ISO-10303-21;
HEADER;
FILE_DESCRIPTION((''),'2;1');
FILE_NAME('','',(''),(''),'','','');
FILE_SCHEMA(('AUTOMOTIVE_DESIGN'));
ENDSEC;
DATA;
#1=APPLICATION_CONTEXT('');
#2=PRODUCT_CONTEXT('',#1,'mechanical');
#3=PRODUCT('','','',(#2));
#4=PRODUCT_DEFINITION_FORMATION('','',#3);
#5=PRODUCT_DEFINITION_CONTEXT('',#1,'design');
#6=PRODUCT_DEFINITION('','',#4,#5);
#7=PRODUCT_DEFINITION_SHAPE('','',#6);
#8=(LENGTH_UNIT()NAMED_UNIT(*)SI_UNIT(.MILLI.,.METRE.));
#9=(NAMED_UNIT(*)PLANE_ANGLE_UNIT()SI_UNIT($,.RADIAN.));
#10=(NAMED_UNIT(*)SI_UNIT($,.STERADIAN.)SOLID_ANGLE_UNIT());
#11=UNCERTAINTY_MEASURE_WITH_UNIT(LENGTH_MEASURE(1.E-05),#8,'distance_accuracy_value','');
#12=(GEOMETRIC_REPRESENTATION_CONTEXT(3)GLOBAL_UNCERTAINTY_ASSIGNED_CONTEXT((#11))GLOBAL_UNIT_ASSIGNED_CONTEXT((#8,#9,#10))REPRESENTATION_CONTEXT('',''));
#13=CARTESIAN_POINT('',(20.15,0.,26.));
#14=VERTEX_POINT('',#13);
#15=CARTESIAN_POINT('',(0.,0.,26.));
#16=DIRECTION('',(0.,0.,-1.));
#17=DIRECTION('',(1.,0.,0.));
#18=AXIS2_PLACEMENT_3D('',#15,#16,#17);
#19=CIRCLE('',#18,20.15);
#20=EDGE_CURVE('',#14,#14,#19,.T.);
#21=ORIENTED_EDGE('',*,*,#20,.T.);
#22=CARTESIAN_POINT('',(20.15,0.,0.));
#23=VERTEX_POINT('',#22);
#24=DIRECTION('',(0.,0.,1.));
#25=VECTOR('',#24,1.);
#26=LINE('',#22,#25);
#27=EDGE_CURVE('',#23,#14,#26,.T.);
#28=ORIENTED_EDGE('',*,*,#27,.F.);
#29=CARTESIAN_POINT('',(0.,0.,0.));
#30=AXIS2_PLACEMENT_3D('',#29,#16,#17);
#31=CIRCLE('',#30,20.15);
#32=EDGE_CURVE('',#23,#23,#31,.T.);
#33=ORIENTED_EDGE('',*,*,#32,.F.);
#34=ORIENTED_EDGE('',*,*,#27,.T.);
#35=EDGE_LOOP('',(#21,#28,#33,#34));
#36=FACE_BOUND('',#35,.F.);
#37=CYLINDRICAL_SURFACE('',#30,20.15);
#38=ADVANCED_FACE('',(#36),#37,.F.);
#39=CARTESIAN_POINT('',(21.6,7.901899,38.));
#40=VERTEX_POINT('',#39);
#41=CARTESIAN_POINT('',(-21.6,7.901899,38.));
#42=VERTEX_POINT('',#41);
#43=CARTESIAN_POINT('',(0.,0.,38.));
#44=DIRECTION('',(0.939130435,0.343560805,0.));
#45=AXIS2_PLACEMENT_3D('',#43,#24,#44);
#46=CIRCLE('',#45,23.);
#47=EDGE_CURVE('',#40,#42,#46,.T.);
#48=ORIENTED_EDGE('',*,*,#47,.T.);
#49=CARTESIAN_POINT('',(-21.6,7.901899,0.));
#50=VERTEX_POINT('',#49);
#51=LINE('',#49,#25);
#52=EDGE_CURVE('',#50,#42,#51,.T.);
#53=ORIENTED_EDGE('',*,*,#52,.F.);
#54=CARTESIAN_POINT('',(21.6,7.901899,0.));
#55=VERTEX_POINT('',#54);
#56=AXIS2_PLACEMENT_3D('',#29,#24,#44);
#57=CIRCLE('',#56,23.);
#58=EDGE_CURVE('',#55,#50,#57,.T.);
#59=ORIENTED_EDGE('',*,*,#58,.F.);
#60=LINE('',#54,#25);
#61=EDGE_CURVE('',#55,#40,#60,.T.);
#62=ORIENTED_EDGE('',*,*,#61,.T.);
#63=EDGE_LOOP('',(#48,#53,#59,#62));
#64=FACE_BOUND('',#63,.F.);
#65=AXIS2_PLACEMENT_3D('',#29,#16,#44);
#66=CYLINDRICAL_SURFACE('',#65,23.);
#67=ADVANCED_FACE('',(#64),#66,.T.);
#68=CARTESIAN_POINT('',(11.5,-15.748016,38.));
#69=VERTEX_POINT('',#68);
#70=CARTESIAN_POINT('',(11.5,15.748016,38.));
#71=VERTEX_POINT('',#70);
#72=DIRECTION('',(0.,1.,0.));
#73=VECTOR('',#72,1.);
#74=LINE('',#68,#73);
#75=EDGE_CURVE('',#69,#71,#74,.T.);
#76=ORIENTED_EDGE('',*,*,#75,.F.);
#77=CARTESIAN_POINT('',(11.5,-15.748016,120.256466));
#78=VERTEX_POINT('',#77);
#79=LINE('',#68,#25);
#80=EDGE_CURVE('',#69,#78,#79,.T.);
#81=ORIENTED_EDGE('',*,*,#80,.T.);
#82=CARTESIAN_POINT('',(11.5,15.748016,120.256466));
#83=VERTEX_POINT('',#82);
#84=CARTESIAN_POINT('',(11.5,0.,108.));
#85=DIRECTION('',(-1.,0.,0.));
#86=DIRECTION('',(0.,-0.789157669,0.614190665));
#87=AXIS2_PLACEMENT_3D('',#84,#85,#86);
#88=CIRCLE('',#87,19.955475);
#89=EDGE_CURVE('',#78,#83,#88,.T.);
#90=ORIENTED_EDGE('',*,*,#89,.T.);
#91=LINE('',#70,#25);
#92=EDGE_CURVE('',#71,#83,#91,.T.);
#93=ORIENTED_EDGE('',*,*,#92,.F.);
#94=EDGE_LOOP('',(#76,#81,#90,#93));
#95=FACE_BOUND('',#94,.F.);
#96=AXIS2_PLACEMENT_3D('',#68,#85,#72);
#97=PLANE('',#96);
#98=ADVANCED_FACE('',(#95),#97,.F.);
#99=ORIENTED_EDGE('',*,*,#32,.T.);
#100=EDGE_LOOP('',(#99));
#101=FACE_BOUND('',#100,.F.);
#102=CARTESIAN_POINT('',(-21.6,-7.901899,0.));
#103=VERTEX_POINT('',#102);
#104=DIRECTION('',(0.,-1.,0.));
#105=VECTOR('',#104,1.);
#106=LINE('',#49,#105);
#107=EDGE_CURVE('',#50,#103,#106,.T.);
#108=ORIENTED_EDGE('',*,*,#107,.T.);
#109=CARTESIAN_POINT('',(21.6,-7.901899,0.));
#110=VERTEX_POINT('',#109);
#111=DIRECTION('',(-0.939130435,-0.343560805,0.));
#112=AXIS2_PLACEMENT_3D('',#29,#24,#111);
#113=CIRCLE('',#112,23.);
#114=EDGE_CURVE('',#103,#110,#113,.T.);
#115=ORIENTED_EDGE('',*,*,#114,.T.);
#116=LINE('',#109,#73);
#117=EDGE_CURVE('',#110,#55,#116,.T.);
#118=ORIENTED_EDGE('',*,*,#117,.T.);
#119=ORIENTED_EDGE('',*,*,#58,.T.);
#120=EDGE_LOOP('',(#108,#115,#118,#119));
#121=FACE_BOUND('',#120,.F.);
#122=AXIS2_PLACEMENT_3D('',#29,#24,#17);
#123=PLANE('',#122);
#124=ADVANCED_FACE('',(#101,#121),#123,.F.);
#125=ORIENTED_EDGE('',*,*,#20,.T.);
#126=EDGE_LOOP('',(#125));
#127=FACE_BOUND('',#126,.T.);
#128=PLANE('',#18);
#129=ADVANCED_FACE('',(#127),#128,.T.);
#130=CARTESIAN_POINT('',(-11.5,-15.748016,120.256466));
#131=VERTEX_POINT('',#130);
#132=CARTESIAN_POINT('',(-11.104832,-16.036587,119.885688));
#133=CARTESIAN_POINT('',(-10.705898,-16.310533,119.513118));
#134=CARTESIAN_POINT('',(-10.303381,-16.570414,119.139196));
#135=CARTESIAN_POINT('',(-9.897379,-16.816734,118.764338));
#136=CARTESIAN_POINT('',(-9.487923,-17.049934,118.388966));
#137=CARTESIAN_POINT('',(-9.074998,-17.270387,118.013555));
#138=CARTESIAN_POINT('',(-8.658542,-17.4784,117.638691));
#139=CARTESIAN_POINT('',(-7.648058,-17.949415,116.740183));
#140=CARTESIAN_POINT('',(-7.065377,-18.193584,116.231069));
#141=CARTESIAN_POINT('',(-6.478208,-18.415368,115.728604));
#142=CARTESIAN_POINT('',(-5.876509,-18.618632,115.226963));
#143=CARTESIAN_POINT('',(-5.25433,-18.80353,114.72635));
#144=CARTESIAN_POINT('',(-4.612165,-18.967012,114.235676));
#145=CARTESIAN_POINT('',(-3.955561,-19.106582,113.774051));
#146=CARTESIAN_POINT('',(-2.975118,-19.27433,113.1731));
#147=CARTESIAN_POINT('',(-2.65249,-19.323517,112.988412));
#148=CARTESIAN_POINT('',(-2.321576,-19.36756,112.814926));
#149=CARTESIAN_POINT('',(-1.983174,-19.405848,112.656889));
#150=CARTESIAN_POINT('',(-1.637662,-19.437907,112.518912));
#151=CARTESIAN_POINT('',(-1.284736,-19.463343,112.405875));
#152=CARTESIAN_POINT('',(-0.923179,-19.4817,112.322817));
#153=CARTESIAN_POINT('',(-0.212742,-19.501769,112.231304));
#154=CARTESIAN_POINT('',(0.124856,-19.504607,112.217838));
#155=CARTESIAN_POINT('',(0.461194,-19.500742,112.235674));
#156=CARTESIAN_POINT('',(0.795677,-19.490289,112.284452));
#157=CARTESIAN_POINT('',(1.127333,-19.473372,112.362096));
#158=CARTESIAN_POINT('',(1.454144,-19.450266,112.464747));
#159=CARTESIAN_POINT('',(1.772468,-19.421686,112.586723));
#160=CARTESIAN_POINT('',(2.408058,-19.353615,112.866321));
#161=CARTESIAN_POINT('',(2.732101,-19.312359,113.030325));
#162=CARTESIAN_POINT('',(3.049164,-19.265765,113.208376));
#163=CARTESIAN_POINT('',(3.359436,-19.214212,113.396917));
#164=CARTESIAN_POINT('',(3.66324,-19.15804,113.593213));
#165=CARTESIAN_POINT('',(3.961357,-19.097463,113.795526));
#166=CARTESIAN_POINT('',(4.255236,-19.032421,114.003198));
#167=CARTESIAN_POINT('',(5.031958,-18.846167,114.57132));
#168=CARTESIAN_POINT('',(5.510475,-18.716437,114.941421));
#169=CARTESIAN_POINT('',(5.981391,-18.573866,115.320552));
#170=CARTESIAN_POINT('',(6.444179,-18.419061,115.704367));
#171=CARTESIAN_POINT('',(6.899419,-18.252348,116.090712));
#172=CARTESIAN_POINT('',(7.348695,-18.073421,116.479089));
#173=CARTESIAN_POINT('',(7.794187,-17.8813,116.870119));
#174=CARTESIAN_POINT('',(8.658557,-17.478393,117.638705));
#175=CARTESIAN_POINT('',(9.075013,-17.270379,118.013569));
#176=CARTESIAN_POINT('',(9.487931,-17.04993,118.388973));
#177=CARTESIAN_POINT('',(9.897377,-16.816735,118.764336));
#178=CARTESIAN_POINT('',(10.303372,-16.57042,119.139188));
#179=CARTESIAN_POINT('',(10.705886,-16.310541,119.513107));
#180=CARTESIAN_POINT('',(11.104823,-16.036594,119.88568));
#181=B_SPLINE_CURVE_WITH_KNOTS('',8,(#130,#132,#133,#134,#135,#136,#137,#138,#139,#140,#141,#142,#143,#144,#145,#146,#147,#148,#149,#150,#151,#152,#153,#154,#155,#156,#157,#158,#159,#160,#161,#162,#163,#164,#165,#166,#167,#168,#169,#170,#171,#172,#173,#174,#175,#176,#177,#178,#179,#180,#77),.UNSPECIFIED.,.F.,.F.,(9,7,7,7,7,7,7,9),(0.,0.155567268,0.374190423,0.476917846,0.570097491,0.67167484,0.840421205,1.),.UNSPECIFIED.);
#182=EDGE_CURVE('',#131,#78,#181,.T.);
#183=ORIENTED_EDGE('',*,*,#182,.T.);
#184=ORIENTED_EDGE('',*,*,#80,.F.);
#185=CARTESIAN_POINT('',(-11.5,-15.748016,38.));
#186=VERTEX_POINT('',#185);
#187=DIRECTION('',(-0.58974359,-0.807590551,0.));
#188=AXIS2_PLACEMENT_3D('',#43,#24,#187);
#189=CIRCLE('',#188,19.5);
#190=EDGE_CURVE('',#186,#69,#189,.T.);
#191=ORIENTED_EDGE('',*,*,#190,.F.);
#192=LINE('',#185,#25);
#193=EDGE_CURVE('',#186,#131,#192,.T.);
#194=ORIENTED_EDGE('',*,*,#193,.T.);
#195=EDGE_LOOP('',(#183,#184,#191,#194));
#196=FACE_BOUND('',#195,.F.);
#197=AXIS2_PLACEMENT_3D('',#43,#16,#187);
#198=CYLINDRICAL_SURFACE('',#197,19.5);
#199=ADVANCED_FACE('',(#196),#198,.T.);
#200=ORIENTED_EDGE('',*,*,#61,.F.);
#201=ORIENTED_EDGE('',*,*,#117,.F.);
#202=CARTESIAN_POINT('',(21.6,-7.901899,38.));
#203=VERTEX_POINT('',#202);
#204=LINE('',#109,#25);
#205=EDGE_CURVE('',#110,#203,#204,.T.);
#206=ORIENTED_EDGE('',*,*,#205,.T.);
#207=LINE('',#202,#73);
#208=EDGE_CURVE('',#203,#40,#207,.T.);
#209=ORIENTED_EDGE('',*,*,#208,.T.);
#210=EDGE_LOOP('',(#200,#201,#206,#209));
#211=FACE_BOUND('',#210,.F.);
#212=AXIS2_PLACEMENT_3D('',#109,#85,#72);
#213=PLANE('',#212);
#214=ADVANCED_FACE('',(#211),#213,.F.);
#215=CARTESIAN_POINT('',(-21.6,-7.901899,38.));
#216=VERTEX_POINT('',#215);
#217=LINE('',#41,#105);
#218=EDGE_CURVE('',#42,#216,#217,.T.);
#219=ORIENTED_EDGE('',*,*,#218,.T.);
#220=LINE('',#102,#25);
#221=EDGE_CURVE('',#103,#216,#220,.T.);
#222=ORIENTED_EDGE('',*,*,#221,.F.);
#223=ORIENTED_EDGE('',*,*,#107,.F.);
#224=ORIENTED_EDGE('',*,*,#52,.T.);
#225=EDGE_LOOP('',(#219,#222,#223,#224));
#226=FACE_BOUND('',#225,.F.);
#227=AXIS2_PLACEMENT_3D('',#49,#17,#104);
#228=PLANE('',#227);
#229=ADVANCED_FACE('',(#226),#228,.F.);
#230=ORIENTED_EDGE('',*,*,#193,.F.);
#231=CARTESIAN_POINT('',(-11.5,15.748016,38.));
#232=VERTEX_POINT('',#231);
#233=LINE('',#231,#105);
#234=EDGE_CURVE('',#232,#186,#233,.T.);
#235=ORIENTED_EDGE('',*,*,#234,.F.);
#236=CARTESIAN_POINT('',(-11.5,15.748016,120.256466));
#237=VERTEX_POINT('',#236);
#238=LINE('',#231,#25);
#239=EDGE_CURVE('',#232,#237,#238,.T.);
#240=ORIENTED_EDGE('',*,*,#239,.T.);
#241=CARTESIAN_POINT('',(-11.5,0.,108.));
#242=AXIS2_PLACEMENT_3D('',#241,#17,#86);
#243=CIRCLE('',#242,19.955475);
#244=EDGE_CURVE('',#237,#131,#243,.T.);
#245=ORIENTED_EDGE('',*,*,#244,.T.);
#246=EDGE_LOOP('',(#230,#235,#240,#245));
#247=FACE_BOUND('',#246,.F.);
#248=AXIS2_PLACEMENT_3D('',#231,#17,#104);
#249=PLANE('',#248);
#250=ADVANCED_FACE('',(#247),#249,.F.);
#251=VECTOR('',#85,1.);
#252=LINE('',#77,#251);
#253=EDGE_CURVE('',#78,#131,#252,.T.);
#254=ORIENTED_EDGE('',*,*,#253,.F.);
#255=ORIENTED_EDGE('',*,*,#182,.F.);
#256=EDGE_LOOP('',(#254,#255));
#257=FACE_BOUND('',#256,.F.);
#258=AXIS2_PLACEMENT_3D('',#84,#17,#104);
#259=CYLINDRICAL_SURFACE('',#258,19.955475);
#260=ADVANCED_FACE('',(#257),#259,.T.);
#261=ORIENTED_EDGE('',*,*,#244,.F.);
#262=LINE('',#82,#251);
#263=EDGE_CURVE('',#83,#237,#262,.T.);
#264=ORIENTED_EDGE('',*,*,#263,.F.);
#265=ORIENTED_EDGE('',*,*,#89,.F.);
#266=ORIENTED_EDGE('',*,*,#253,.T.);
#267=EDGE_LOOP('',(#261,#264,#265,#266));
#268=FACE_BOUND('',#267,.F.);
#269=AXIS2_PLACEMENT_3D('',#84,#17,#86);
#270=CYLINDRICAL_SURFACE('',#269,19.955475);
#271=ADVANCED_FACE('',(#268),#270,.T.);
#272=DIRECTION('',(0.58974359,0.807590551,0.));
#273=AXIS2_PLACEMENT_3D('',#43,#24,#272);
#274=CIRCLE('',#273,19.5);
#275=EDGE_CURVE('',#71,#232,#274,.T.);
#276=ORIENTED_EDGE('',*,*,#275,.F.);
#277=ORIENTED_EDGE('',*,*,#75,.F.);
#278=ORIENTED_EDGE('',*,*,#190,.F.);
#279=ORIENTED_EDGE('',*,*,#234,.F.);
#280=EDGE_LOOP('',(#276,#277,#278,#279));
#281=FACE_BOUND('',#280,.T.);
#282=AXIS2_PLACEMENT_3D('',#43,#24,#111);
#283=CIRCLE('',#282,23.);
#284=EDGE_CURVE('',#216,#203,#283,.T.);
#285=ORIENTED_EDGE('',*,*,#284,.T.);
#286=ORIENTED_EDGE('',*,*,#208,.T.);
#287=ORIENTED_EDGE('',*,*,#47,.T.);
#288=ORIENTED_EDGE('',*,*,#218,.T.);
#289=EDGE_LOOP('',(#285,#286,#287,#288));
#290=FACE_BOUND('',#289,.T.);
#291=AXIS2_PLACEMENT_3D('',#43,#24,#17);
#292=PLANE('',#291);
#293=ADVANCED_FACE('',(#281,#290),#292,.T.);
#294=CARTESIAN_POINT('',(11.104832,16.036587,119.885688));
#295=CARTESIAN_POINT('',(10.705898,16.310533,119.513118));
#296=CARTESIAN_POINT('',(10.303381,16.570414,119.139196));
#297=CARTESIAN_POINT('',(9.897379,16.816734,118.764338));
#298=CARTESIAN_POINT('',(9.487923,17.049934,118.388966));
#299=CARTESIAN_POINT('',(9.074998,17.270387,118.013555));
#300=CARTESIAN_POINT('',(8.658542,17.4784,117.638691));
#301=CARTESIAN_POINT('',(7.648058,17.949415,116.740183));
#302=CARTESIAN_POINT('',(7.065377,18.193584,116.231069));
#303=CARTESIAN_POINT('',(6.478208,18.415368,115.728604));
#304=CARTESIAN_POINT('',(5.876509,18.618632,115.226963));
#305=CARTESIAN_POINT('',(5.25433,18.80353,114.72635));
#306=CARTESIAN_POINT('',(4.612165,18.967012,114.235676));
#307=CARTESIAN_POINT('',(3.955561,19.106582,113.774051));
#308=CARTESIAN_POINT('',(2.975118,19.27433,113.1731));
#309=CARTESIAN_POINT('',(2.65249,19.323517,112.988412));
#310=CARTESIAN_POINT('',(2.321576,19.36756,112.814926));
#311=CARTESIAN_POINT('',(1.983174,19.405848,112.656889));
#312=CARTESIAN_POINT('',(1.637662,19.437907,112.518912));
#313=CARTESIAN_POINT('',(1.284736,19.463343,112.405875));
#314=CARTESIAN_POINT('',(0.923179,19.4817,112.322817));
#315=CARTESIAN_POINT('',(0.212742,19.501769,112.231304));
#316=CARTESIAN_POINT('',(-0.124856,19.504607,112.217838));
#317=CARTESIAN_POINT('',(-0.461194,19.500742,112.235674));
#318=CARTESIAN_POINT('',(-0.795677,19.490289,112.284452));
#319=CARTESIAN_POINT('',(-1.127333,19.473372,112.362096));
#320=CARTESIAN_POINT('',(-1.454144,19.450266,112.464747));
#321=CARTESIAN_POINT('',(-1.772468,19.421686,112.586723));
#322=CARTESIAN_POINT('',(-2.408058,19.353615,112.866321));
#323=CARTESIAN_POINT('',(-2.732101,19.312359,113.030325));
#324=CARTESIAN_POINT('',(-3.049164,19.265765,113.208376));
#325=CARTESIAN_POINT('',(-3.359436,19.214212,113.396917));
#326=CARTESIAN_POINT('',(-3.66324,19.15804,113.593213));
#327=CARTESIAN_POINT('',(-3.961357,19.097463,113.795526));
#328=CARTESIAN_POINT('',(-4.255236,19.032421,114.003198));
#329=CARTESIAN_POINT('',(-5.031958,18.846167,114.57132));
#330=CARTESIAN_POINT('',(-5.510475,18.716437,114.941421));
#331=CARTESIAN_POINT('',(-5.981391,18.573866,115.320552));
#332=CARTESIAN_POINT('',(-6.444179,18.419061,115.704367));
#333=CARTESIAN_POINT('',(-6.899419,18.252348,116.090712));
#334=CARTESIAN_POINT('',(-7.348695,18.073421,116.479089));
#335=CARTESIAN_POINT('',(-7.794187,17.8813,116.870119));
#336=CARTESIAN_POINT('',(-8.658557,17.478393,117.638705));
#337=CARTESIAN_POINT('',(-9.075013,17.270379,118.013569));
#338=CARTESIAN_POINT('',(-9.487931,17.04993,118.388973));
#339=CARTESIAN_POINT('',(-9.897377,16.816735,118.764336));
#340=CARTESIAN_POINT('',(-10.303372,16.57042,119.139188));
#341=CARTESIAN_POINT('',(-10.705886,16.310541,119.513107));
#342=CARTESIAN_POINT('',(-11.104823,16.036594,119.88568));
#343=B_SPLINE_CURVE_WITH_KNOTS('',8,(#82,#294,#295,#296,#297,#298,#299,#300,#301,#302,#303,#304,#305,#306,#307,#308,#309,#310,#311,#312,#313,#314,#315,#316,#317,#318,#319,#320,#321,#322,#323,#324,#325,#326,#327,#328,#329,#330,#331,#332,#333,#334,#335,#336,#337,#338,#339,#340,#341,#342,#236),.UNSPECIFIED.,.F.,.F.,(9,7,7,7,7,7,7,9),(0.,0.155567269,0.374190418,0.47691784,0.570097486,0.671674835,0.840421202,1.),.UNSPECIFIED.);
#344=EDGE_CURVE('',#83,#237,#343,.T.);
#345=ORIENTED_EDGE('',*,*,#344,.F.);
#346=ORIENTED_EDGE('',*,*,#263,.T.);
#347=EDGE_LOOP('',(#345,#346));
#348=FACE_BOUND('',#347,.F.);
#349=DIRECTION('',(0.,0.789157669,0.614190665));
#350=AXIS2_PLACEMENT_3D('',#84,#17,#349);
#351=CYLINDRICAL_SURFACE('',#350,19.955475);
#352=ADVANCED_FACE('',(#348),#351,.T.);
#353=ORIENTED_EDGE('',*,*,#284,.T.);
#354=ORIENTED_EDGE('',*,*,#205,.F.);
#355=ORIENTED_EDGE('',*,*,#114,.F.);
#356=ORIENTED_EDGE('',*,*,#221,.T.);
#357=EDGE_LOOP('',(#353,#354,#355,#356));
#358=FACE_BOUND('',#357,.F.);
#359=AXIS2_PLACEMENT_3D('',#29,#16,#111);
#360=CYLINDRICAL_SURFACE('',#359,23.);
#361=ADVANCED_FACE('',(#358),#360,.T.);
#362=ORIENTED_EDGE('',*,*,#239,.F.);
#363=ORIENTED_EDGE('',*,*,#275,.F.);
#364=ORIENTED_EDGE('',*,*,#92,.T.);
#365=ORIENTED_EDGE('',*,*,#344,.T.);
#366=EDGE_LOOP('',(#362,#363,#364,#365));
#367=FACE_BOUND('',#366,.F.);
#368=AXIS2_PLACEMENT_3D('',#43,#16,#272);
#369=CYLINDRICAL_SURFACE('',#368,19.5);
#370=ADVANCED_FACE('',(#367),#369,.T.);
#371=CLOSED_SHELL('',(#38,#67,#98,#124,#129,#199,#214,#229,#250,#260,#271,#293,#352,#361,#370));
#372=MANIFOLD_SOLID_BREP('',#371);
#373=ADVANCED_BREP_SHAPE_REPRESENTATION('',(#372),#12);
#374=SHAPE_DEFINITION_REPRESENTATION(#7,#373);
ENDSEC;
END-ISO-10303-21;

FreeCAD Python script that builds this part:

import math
import FreeCAD as App
import Part
import Sketcher
from FreeCAD import Vector
Q = App.Units.Quantity

doc = App.newDocument("Part")
body = doc.addObject("PartDesign::Body", "Body")

# Sketch on XY plane
sketch1 = body.newObject("Sketcher::SketchObject", "Sketch")
sketch1.AttachmentSupport = (doc.getObject("XY_Plane"), [""])
sketch1.MapMode = "FlatFace"
sketch1.addGeometry(Part.LineSegment(Vector(22, -8, 0), Vector(22, 8, 0)), False)
sketch1.addGeometry(Part.ArcOfCircle(Part.Circle(Vector(0, 0, 0), Vector(0, 0, 1), 23), math.radians(20), math.radians(160)), False)
sketch1.addGeometry(Part.LineSegment(Vector(-22, 8, 0), Vector(-22, -8, 0)), False)
sketch1.addGeometry(Part.ArcOfCircle(Part.Circle(Vector(0, 0, 0), Vector(0, 0, 1), 23), math.radians(-160), math.radians(-20)), False)
sketch1.addConstraint(Sketcher.Constraint("Coincident", 0, 2, 1, 1))
sketch1.addConstraint(Sketcher.Constraint("Coincident", 1, 2, 2, 1))
sketch1.addConstraint(Sketcher.Constraint("Coincident", 2, 2, 3, 1))
sketch1.addConstraint(Sketcher.Constraint("Coincident", 3, 2, 0, 1))
sketch1.addConstraint(Sketcher.Constraint("Vertical", 0))
sketch1.addConstraint(Sketcher.Constraint("Vertical", 2))
sketch1.addConstraint(Sketcher.Constraint("Coincident", 1, 3, -1, 1))
sketch1.addConstraint(Sketcher.Constraint("Coincident", 3, 3, -1, 1))
sketch1.addConstraint(Sketcher.Constraint("Equal", 1, 3))
sketch1.addConstraint(Sketcher.Constraint("Horizontal", 0, 2, 1, 2))
sketch1.addConstraint(Sketcher.Constraint("Radius", 1, Q("23 mm")))
sketch1.addConstraint(Sketcher.Constraint("DistanceX", -1, 1, 0, 2, Q("21.6 mm")))
pad1 = body.newObject("PartDesign::Pad", "Pad")
pad1.Profile = sketch1
pad1.Length = 38

# Sketch on XY plane
sketch2 = body.newObject("Sketcher::SketchObject", "Sketch001")
sketch2.AttachmentSupport = (doc.getObject("XY_Plane"), [""])
sketch2.MapMode = "FlatFace"
sketch2.AttachmentOffset = App.Placement(Vector(0, 0, 38), App.Rotation())
sketch2.addGeometry(Part.ArcOfCircle(Part.Circle(Vector(0, 0, 0), Vector(0, 0, 1), 20), math.radians(54), math.radians(126)), False)
sketch2.addGeometry(Part.LineSegment(Vector(-12, 16, 0), Vector(-12, -16, 0)), False)
sketch2.addGeometry(Part.ArcOfCircle(Part.Circle(Vector(0, 0, 0), Vector(0, 0, 1), 20), math.radians(-126), math.radians(-54)), False)
sketch2.addGeometry(Part.LineSegment(Vector(12, -16, 0), Vector(12, 16, 0)), False)
sketch2.addConstraint(Sketcher.Constraint("Coincident", 0, 2, 1, 1))
sketch2.addConstraint(Sketcher.Constraint("Coincident", 1, 2, 2, 1))
sketch2.addConstraint(Sketcher.Constraint("Coincident", 2, 2, 3, 1))
sketch2.addConstraint(Sketcher.Constraint("Coincident", 3, 2, 0, 1))
sketch2.addConstraint(Sketcher.Constraint("Vertical", 1))
sketch2.addConstraint(Sketcher.Constraint("Vertical", 3))
sketch2.addConstraint(Sketcher.Constraint("Coincident", 0, 3, -1, 1))
sketch2.addConstraint(Sketcher.Constraint("Coincident", 2, 3, -1, 1))
sketch2.addConstraint(Sketcher.Constraint("Equal", 0, 2))
sketch2.addConstraint(Sketcher.Constraint("Horizontal", 1, 2, 2, 2))
sketch2.addConstraint(Sketcher.Constraint("Radius", 0, Q("19.5 mm")))
sketch2.addConstraint(Sketcher.Constraint("DistanceX", 1, 2, 2, 2, Q("23 mm")))
pad2 = body.newObject("PartDesign::Pad", "Pad001")
pad2.Profile = sketch2
pad2.Length = 93

# Sketch on YZ plane
sketch3 = body.newObject("Sketcher::SketchObject", "Sketch002")
sketch3.AttachmentSupport = (doc.getObject("YZ_Plane"), [""])
sketch3.MapMode = "FlatFace"
sketch3.AttachmentOffset = App.Placement(Vector(0, 0, 11.5), App.Rotation())
sketch3.addGeometry(Part.ArcOfCircle(Part.Circle(Vector(0, 108, 0), Vector(0, 0, 1), 20), math.radians(0), math.radians(38)), False)
sketch3.addGeometry(Part.LineSegment(Vector(20, 108, 0), Vector(37, 135, 0)), False)
sketch3.addGeometry(Part.LineSegment(Vector(37, 135, 0), Vector(-38, 135, 0)), False)
sketch3.addGeometry(Part.LineSegment(Vector(-38, 135, 0), Vector(-20, 108, 0)), False)
sketch3.addGeometry(Part.ArcOfCircle(Part.Circle(Vector(0, 108, 0), Vector(0, 0, 1), 20), math.radians(142), math.radians(180)), False)
sketch3.addGeometry(Part.ArcOfCircle(Part.Circle(Vector(0, 108, 0), Vector(0, 0, 1), 20), math.radians(38), math.radians(142)), False)
sketch3.addConstraint(Sketcher.Constraint("Coincident", 0, 1, 1, 1))
sketch3.addConstraint(Sketcher.Constraint("Coincident", 1, 2, 2, 1))
sketch3.addConstraint(Sketcher.Constraint("Coincident", 2, 2, 3, 1))
sketch3.addConstraint(Sketcher.Constraint("Coincident", 3, 2, 4, 2))
sketch3.addConstraint(Sketcher.Constraint("Tangent", 4, 1, 5, 2))
sketch3.addConstraint(Sketcher.Constraint("Tangent", 5, 1, 0, 2))
sketch3.addConstraint(Sketcher.Constraint("Horizontal", 2))
sketch3.addConstraint(Sketcher.Constraint("Coincident", 4, 3, 0, 3))
sketch3.addConstraint(Sketcher.Constraint("Symmetric", 0, 1, 3, 2, -2))
sketch3.addConstraint(Sketcher.Constraint("Horizontal", 5, 3, 0, 1))
sketch3.addConstraint(Sketcher.Constraint("Horizontal", 4, 1, 5, 1))
sketch3.addConstraint(Sketcher.Constraint("DistanceY", -1, 1, 0, 3, Q("108 mm")))
sketch3.addConstraint(Sketcher.Constraint("Radius", 0, Q("19.955475 mm")))
sketch3.addConstraint(Sketcher.Constraint("Distance", 3, Q("32.63864 mm")))
sketch3.addConstraint(Sketcher.Constraint("DistanceX", 2, 2, 2, 1, Q("75.505648 mm")))
sketch3.addConstraint(Sketcher.Constraint("DistanceY", -1, 1, 1, 2, Q("135.02863 mm")))
sketch3.addConstraint(Sketcher.Constraint("DistanceX", 3, 2, 4, 1, Q("4.207459 mm")))
pocket1 = body.newObject("PartDesign::Pocket", "Pocket")
pocket1.Profile = sketch3
pocket1.Length = 35

# Sketch on XY plane
sketch4 = body.newObject("Sketcher::SketchObject", "Sketch003")
sketch4.AttachmentSupport = (doc.getObject("XY_Plane"), [""])
sketch4.MapMode = "FlatFace"
sketch4.addGeometry(Part.Circle(Vector(0, 0, 0), Vector(0, 0, 1), 20), False)
sketch4.addConstraint(Sketcher.Constraint("Coincident", 0, 3, -1, 1))
sketch4.addConstraint(Sketcher.Constraint("Diameter", 0, Q("40.3 mm")))
pocket2 = body.newObject("PartDesign::Pocket", "Pocket001")
pocket2.Profile = sketch4
pocket2.Length = 26
pocket2.Reversed = True

doc.recompute()
